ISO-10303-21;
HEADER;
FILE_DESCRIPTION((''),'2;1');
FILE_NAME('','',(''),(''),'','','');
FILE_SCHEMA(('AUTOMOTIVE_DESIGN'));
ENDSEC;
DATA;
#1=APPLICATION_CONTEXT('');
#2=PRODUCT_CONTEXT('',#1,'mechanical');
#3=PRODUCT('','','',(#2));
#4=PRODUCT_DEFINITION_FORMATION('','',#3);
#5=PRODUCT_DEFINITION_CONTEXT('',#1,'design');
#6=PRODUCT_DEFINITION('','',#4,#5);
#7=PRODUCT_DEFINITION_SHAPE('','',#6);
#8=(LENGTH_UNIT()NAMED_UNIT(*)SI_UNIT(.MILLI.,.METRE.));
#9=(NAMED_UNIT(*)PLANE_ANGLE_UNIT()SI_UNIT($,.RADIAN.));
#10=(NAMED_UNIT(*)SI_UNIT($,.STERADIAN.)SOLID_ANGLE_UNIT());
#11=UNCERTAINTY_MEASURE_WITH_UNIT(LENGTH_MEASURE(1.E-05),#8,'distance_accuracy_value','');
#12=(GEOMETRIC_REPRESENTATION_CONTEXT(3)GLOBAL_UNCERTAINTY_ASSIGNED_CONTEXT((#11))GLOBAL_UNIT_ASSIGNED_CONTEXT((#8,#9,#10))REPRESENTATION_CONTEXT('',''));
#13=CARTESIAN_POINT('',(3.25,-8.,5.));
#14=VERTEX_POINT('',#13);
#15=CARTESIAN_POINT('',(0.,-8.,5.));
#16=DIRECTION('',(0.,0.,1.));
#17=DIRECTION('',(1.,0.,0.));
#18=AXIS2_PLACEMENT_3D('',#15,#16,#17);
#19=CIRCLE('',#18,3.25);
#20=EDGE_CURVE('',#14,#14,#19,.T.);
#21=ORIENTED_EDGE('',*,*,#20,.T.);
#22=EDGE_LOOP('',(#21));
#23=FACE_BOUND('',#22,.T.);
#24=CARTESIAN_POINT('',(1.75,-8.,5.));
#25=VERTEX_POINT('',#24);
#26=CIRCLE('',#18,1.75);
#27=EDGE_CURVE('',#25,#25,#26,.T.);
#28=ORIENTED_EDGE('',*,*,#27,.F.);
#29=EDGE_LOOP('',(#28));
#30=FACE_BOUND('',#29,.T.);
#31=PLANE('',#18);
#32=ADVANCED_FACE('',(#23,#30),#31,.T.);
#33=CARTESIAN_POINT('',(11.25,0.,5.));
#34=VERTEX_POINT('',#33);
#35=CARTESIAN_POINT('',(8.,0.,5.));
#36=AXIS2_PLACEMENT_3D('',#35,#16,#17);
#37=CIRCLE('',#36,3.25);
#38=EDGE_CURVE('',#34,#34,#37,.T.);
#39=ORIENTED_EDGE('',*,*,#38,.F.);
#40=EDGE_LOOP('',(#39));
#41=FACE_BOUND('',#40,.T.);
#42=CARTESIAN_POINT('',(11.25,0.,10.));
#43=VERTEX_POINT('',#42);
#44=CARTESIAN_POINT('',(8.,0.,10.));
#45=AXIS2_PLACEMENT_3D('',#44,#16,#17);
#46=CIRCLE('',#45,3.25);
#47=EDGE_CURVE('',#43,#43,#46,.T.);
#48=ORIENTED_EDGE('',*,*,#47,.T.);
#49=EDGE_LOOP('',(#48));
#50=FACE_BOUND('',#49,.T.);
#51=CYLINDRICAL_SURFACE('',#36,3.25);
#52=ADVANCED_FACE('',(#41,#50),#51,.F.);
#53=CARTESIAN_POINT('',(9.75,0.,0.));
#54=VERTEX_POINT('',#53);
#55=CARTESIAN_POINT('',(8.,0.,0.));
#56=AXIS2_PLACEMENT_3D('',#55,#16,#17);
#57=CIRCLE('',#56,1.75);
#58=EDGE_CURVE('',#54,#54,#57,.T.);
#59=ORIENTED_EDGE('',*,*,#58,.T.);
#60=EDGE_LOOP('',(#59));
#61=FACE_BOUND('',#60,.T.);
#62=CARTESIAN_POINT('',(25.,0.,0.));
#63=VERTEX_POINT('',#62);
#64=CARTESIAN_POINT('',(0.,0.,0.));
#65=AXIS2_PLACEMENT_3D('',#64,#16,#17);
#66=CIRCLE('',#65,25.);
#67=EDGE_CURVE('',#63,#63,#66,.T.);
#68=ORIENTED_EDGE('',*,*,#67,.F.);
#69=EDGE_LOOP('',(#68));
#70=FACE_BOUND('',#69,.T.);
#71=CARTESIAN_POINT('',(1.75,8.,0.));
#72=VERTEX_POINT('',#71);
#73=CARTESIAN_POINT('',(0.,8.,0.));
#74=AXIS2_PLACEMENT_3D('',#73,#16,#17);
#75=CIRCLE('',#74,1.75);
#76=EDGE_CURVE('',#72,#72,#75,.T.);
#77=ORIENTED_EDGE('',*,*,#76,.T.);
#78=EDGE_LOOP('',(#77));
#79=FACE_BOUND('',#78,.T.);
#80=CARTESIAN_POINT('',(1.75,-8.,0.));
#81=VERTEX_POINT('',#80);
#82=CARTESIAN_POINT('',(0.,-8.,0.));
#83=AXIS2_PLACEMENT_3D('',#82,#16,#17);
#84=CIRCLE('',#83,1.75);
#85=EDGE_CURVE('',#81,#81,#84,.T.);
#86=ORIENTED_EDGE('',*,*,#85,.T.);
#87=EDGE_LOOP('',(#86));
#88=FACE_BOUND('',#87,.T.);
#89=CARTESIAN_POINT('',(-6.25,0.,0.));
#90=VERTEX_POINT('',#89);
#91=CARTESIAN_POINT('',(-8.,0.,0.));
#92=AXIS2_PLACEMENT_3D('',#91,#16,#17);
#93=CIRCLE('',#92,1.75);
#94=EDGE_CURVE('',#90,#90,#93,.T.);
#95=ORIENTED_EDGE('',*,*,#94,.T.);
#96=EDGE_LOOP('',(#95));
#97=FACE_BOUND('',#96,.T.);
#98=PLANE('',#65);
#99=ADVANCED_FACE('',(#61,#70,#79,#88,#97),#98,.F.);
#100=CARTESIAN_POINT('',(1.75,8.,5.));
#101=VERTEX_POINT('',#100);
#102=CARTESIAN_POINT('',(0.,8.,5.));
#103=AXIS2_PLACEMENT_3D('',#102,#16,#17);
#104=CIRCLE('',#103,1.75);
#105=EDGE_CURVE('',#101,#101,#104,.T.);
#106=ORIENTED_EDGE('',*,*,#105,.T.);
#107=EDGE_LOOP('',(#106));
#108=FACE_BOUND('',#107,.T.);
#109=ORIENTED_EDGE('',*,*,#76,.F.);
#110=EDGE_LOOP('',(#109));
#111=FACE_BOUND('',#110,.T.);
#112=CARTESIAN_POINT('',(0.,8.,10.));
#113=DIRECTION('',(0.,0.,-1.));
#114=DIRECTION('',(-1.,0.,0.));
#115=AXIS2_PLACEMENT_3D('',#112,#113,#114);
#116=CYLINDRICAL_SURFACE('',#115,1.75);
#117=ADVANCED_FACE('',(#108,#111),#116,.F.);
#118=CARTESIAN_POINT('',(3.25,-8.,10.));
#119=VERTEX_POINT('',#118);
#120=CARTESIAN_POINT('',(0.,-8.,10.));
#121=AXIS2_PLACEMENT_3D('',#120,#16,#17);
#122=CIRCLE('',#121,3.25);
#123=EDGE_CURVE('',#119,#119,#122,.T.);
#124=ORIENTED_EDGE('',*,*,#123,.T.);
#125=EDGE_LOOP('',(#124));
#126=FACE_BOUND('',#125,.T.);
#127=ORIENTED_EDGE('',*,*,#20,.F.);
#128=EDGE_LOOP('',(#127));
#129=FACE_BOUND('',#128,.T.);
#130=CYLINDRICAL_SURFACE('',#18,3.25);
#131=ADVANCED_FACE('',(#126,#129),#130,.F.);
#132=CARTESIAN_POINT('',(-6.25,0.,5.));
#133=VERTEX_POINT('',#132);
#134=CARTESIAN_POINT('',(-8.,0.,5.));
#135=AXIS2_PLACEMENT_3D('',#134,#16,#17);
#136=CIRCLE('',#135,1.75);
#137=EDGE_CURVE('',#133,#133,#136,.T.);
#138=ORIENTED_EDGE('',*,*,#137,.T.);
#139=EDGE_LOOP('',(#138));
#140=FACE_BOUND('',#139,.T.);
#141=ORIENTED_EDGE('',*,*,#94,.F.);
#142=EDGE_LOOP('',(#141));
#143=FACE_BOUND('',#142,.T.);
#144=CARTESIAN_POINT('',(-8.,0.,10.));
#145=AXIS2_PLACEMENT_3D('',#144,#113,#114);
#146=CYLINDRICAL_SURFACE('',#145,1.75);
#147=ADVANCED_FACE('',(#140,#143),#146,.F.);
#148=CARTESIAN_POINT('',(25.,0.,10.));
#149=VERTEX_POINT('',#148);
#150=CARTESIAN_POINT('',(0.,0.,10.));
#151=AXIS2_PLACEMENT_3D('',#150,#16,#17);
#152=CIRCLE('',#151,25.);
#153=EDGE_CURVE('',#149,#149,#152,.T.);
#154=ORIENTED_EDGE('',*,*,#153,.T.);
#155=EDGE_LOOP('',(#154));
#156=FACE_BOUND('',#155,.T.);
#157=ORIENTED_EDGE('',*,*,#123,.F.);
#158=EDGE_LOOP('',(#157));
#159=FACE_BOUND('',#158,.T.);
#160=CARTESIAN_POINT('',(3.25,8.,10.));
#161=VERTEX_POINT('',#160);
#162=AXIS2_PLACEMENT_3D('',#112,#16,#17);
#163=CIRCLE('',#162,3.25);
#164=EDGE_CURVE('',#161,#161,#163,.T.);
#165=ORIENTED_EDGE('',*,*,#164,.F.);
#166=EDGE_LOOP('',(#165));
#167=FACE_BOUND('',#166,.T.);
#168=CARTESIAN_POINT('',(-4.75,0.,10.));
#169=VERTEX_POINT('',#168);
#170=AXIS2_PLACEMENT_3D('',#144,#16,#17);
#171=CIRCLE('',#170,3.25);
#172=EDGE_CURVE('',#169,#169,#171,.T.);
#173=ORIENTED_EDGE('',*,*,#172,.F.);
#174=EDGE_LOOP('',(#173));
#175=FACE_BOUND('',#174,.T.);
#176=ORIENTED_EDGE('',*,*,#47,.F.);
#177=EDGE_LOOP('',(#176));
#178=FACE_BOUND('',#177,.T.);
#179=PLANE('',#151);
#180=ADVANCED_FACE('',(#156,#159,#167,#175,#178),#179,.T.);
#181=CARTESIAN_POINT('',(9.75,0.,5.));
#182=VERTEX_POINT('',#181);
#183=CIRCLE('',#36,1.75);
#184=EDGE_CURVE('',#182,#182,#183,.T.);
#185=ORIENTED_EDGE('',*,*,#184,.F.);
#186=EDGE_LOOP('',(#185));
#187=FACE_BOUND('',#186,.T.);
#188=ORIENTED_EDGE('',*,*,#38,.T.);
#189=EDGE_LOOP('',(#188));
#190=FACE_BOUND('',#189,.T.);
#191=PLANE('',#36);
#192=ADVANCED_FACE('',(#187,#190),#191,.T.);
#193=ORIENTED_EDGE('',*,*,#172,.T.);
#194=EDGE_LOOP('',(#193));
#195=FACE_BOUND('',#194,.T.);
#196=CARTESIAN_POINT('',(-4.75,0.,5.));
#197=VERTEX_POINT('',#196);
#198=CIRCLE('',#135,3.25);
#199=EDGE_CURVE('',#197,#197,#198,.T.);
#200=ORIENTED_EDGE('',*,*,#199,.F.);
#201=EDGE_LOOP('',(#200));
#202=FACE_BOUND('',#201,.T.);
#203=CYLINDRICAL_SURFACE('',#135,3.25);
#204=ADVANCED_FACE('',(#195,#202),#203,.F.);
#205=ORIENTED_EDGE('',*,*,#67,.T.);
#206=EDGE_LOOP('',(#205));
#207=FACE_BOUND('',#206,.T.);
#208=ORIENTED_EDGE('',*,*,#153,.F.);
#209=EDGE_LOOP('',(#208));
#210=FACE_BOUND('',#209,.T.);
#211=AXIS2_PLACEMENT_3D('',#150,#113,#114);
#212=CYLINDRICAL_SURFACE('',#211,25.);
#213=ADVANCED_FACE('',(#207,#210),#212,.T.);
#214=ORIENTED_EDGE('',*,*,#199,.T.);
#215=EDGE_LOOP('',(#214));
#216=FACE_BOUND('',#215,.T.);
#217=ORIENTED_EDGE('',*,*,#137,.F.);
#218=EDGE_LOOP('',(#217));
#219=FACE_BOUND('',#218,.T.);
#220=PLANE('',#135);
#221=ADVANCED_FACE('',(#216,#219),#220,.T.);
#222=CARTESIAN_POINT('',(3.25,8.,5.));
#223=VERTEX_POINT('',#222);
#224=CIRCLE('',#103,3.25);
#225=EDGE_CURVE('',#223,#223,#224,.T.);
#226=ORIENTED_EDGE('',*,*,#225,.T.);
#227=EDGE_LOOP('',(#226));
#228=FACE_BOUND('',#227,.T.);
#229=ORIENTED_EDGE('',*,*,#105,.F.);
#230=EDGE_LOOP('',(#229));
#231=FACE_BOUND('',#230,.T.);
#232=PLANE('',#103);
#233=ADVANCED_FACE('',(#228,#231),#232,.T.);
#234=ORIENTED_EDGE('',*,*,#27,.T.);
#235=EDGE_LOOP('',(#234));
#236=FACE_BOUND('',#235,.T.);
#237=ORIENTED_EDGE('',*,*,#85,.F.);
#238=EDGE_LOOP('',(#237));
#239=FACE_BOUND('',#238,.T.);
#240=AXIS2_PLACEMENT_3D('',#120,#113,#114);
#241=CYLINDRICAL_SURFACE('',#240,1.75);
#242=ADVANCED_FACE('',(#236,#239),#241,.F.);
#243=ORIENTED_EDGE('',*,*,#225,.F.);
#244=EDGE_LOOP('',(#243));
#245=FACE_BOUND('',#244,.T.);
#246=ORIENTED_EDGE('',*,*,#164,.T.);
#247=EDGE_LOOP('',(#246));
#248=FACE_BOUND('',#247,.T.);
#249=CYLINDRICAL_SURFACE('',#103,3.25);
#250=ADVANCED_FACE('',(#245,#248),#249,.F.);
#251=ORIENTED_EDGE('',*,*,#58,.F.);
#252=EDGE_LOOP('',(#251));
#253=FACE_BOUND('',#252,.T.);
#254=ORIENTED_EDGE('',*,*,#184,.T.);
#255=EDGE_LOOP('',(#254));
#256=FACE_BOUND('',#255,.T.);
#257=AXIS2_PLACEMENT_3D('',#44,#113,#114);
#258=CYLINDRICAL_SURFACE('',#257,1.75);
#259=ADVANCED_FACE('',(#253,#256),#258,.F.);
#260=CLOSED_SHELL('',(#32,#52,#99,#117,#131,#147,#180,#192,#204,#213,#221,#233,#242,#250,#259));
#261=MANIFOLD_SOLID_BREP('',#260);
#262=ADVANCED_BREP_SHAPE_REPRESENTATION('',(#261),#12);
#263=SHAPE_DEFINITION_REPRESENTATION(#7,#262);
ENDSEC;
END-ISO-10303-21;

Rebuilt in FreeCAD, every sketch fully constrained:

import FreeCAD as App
import Part
import Sketcher

V = App.Vector
Q = App.Units.Quantity

doc = App.newDocument("Part")
body = doc.addObject("PartDesign::Body", "Body")

# Sketch on XY plane
sketch1 = body.newObject("Sketcher::SketchObject", "Sketch")
sketch1.AttachmentSupport = (doc.getObject("XY_Plane"), [""])
sketch1.MapMode = "FlatFace"
sketch1.addGeometry([
    Part.Circle(V(0, 0, 0), V(0, 0, 1), 25),  # 0
    Part.Circle(V(0, -8, 0), V(0, 0, 1), 1.8),  # 1
    Part.Circle(V(-8, 0, 0), V(0, 0, 1), 1.8),  # 2
    Part.Circle(V(8, 0, 0), V(0, 0, 1), 1.8),  # 3
    Part.Circle(V(0, 8, 0), V(0, 0, 1), 1.8),  # 4
], False)
sketch1.addConstraint([
    Sketcher.Constraint("Coincident", 0, 3, -1, 1),
    Sketcher.Constraint("Equal", 1, 2),
    Sketcher.Constraint("Equal", 2, 3),
    Sketcher.Constraint("Equal", 3, 4),
    Sketcher.Constraint("Symmetric", 2, 3, 3, 3, -1, 1),
    Sketcher.Constraint("Symmetric", 1, 3, 4, 3, -1, 1),
    Sketcher.Constraint("PointOnObject", 1, 3, -2),
    Sketcher.Constraint("PointOnObject", 2, 3, -1),
    Sketcher.Constraint("Diameter", 0, Q("50 mm")),
    Sketcher.Constraint("Diameter", 1, Q("3.5 mm")),
    Sketcher.Constraint("DistanceY", 1, 3, -1, 1, Q("8 mm")),
    Sketcher.Constraint("DistanceX", 2, 3, -1, 1, Q("8 mm")),
])
pad1 = body.newObject("PartDesign::Pad", "Pad")
pad1.Profile = sketch1
pad1.Length = 10

# Sketch on XY plane
sketch2 = body.newObject("Sketcher::SketchObject", "Sketch001")
sketch2.AttachmentSupport = (doc.getObject("XY_Plane"), [""])
sketch2.MapMode = "FlatFace"
sketch2.AttachmentOffset = App.Placement(V(0, 0, 10), App.Rotation())
sketch2.addGeometry([
    Part.Circle(V(0, 8, 0), V(0, 0, 1), 3.2),
    Part.Circle(V(8, 0, 0), V(0, 0, 1), 3.2),
    Part.Circle(V(0, -8, 0), V(0, 0, 1), 3.2),
    Part.Circle(V(-8, 0, 0), V(0, 0, 1), 3.2),
], False)
sketch2.addConstraint([
    Sketcher.Constraint("Equal", 0, 1),
    Sketcher.Constraint("Equal", 1, 2),
    Sketcher.Constraint("Equal", 2, 3),
    Sketcher.Constraint("Symmetric", 0, 3, 2, 3, -1, 1),
    Sketcher.Constraint("Symmetric", 1, 3, 3, 3, -1, 1),
    Sketcher.Constraint("PointOnObject", 0, 3, -2),
    Sketcher.Constraint("PointOnObject", 1, 3, -1),
    Sketcher.Constraint("Diameter", 0, Q("6.5 mm")),
    Sketcher.Constraint("DistanceY", -1, 1, 0, 3, Q("8 mm")),
    Sketcher.Constraint("DistanceX", -1, 1, 1, 3, Q("8 mm")),
])
pocket1 = body.newObject("PartDesign::Pocket", "Pocket")
pocket1.Profile = sketch2
pocket1.Length = 5

doc.recompute()
